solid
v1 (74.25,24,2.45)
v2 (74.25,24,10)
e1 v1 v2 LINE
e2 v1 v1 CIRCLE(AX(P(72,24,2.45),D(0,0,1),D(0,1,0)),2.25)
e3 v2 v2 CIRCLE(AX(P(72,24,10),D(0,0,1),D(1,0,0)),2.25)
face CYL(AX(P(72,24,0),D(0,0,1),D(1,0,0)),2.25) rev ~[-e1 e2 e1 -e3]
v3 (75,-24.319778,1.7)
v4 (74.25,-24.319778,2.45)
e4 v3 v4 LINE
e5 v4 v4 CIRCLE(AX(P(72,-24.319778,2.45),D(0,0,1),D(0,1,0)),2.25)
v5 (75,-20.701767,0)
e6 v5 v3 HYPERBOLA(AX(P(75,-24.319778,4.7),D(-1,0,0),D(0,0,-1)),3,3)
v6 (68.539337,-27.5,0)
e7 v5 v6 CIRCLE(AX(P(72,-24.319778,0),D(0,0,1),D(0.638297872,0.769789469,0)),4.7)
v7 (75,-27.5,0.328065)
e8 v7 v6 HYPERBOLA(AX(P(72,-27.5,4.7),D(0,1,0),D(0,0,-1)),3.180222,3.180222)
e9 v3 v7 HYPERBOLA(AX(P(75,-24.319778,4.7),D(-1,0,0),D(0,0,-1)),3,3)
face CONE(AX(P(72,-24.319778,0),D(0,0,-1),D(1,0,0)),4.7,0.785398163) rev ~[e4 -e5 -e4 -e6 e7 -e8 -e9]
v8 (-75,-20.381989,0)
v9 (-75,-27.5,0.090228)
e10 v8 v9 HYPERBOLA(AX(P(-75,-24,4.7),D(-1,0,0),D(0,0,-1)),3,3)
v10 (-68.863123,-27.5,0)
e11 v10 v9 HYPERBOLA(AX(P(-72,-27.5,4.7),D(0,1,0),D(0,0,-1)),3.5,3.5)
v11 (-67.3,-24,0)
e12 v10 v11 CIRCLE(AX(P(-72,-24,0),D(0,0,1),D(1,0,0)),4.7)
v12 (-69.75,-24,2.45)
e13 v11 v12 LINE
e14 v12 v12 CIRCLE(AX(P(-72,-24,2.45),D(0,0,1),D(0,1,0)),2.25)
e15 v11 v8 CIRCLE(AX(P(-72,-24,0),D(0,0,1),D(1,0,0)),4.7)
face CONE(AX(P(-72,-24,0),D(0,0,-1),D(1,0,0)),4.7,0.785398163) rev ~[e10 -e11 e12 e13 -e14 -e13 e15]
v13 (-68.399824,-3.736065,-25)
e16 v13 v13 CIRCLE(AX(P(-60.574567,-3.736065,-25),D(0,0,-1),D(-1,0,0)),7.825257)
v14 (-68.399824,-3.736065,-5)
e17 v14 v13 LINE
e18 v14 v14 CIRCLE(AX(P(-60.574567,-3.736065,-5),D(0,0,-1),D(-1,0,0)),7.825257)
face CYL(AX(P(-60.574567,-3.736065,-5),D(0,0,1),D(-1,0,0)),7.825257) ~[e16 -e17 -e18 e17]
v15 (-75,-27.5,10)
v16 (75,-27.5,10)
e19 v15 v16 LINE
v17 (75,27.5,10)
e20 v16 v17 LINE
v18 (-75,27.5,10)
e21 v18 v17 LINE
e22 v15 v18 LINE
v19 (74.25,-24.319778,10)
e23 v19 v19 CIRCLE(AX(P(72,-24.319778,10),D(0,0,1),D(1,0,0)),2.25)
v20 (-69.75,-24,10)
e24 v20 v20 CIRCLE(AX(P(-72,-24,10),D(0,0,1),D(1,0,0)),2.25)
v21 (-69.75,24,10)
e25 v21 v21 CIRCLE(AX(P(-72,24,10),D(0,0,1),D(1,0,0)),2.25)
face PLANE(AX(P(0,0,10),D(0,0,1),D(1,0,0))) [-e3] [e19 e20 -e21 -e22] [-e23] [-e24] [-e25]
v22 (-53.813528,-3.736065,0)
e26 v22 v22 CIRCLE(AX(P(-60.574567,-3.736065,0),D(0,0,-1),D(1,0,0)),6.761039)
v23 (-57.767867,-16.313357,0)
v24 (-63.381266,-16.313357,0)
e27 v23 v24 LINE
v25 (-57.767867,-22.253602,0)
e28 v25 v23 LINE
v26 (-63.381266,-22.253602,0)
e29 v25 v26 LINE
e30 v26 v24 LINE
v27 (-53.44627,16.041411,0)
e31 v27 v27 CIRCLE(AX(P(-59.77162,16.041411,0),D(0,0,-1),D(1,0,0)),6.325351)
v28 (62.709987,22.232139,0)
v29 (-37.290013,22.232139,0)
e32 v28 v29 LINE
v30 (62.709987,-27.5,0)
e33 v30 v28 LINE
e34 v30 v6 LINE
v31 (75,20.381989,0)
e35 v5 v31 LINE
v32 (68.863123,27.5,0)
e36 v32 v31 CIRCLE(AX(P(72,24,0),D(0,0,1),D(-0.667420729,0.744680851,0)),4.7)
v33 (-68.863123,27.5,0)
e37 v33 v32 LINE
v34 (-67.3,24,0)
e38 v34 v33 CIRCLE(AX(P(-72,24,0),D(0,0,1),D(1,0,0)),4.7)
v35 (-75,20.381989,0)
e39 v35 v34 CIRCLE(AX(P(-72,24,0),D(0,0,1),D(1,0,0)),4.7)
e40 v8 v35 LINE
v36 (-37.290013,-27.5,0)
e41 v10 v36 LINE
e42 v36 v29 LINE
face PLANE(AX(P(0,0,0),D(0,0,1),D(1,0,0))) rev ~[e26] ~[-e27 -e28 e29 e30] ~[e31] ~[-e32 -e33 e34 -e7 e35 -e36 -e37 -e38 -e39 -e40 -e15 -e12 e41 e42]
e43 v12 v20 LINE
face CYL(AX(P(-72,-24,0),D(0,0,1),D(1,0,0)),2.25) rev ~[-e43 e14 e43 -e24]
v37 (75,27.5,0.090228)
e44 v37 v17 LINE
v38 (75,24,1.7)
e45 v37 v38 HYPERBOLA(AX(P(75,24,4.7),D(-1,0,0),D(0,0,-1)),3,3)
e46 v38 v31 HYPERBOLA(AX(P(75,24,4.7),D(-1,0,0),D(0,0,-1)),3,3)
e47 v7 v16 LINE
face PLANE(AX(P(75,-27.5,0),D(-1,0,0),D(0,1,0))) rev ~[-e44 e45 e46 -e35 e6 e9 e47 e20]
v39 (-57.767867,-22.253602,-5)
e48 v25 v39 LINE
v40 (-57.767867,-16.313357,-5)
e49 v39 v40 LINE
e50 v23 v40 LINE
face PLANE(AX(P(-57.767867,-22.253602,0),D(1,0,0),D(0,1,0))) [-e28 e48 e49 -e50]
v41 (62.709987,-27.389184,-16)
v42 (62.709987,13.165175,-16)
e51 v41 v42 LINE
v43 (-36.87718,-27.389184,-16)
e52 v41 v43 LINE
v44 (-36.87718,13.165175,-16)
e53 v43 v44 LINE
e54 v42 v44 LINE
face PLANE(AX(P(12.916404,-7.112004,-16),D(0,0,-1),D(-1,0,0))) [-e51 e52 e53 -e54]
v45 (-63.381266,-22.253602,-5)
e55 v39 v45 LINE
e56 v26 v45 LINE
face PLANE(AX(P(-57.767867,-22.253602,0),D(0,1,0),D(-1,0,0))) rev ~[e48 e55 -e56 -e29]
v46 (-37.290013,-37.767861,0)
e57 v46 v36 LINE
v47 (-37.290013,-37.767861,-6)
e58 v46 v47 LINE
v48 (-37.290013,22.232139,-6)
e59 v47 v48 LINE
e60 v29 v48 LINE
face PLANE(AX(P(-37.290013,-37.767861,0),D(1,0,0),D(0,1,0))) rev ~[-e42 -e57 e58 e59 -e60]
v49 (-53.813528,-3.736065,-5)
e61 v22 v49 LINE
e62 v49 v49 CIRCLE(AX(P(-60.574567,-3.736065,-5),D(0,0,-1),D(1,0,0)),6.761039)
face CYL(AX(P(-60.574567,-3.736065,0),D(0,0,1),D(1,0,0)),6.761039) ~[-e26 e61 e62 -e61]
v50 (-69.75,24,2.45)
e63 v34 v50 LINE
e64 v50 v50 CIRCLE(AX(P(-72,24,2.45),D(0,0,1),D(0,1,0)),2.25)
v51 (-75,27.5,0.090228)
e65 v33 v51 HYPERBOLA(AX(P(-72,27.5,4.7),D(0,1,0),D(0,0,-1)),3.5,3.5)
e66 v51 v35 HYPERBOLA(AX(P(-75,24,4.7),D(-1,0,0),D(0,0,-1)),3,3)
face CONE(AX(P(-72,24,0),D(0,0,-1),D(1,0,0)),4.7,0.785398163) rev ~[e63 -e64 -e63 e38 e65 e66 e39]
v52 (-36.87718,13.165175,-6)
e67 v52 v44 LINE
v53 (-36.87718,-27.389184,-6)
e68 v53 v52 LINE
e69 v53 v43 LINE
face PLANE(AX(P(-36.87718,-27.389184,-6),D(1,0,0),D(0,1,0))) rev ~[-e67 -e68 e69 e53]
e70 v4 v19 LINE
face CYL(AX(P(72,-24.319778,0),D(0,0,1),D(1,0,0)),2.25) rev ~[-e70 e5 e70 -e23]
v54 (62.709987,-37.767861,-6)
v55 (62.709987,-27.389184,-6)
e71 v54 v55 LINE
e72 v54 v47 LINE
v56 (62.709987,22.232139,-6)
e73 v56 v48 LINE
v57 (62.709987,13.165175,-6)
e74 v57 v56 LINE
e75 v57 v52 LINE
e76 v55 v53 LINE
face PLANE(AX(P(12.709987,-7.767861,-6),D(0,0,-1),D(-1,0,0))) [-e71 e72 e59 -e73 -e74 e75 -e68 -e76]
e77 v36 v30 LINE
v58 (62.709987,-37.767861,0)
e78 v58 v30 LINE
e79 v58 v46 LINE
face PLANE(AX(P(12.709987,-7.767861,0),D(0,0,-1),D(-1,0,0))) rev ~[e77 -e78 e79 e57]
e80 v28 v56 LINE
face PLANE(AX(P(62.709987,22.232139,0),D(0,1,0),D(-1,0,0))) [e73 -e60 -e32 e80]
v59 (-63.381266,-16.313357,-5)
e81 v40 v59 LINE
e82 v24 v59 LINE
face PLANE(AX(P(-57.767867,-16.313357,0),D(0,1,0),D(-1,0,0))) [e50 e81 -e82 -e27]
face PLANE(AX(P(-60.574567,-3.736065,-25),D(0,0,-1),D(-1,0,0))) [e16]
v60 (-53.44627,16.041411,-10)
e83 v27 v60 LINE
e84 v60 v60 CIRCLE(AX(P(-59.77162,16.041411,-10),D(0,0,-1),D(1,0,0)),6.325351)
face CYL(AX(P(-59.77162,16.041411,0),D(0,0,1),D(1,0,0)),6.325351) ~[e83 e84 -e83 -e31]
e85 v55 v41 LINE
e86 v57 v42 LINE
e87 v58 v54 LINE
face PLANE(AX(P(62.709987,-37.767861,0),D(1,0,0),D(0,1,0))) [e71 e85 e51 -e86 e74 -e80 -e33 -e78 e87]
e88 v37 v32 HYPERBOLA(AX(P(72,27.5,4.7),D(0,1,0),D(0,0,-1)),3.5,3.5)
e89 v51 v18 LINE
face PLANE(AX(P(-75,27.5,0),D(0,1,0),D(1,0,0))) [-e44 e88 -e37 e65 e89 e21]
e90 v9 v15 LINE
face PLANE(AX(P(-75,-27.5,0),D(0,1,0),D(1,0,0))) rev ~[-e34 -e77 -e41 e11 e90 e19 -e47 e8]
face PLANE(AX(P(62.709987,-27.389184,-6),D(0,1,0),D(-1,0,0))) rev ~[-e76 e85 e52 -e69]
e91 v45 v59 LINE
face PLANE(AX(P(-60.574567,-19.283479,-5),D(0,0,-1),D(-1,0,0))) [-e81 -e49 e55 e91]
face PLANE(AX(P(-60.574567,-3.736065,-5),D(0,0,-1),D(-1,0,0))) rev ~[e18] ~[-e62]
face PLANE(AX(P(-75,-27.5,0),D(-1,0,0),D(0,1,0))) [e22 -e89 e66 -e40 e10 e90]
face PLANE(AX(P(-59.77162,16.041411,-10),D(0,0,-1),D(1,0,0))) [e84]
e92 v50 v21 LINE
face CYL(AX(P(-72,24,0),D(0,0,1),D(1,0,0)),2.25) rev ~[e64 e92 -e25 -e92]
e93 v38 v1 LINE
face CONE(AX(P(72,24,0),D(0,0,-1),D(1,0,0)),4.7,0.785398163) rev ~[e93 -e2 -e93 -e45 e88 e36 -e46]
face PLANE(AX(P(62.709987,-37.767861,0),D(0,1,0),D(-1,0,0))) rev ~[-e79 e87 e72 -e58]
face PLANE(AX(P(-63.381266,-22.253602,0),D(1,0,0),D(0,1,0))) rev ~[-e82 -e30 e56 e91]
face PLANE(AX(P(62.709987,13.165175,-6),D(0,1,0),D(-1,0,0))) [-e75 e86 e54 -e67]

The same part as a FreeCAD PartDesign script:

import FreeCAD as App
import Part
import Sketcher

V = App.Vector


def add_polygon(sketch, points):
    """Adds a closed chain of lines whose ends are joined by coincident constraints."""
    first, n = sketch.GeometryCount, len(points)
    for a, b in zip(points, points[1:] + points[:1]):
        sketch.addGeometry(Part.LineSegment(App.Vector(*a, 0), App.Vector(*b, 0)), False)
    for i in range(n):
        sketch.addConstraint(Sketcher.Constraint("Coincident", first + i, 2, first + (i + 1) % n, 1))

doc = App.newDocument("Part")
params = doc.addObject("Spreadsheet::Sheet", "Params")
for row, (alias, value) in enumerate([
    ("sketch1_width", "150 mm"),
    ("sketch1_height", "55 mm"),
    ("pad1_length", "10 mm"),
    ("sketch2_diameter", "4.5 mm"),
    ("hole_diameter", "4.5 mm"),
    ("hole_csink_diameter", "9.4 mm"),
    ("sketch3_width", "100 mm"),
    ("sketch3_height", "60 mm"),
    ("pad2_length", "6 mm"),
    ("pad3_length", "10 mm"),
    ("pad4_length", "10 mm"),
    ("pad5_length", "5 mm"),
    ("pad6_length", "20 mm"),
], start=1):
    params.set(f"A{row}", alias)
    params.set(f"B{row}", "=" + value)
    params.setAlias(f"B{row}", alias)

body = doc.addObject("PartDesign::Body", "Body")

sketch1 = body.newObject("Sketcher::SketchObject", "Sketch")
sketch1.AttachmentSupport = (doc.getObject("XY_Plane"), [""])
sketch1.MapMode = "FlatFace"
add_polygon(sketch1, [(-75, 28), (-75, -28), (75, -28), (75, 28)])
sketch1.addConstraint([
    Sketcher.Constraint("Vertical", 0),
    Sketcher.Constraint("Horizontal", 1),
    Sketcher.Constraint("Vertical", 2),
    Sketcher.Constraint("Horizontal", 3),
    Sketcher.Constraint("Symmetric", 0, 2, 2, 2, -1, 1),
    Sketcher.Constraint("DistanceX", 1, 1, 1, 2, 150.0),
    Sketcher.Constraint("DistanceY", 0, 2, 0, 1, 55.0),
])
sketch1.setExpression("Constraints[9]", "Params.sketch1_width")
sketch1.setExpression("Constraints[10]", "Params.sketch1_height")
pad1 = body.newObject("PartDesign::Pad", "Pad")
pad1.Profile = sketch1
pad1.setExpression("Length", "Params.pad1_length")

sketch2 = body.newObject("Sketcher::SketchObject", "Sketch001")
sketch2.AttachmentSupport = (doc.getObject("XY_Plane"), [""])
sketch2.MapMode = "FlatFace"
sketch2.addGeometry([
    Part.Circle(V(72, 24, 0), V(0, 0, 1), 2.2),
    Part.Circle(V(72, -24.3, 0), V(0, 0, 1), 2.2),
    Part.Circle(V(-72, -24, 0), V(0, 0, 1), 2.2),
    Part.Circle(V(-72, 24, 0), V(0, 0, 1), 2.2),
], False)
sketch2.addConstraint([
    Sketcher.Constraint("Equal", 0, 1),
    Sketcher.Constraint("Equal", 1, 2),
    Sketcher.Constraint("Equal", 2, 3),
    Sketcher.Constraint("Symmetric", 0, 3, 2, 3, -1, 1),
    Sketcher.Constraint("Symmetric", 0, 3, 3, 3, -2),
    Sketcher.Constraint("Vertical", 0, 3, 1, 3),
    Sketcher.Constraint("Diameter", 0, 4.5),
    Sketcher.Constraint("DistanceX", -1, 1, 0, 3, 72.0),
    Sketcher.Constraint("DistanceY", -1, 1, 0, 3, 24.0),
    Sketcher.Constraint("DistanceY", 1, 3, -1, 1, 24.319778),
])
sketch2.setExpression("Constraints[6]", "Params.sketch2_diameter")
doc.recompute()
hole = body.newObject("PartDesign::Hole", "Hole")
hole.Profile = sketch2
hole.ThreadType = "None"
hole.setExpression("Diameter", "Params.hole_diameter")
hole.DepthType = "ThroughAll"
hole.HoleCutType = "Countersink"
hole.setExpression("HoleCutDiameter", "Params.hole_csink_diameter")
hole.HoleCutCountersinkAngle = 90
hole.Reversed = True

sketch3 = body.newObject("Sketcher::SketchObject", "Sketch002")
sketch3.AttachmentSupport = (doc.getObject("XY_Plane"), [""])
sketch3.MapMode = "FlatFace"
add_polygon(sketch3, [(63, 22), (63, -38), (-37, -38), (-37, 22)])
sketch3.addConstraint([
    Sketcher.Constraint("Vertical", 0),
    Sketcher.Constraint("Horizontal", 1),
    Sketcher.Constraint("Vertical", 2),
    Sketcher.Constraint("Horizontal", 3),
    Sketcher.Constraint("DistanceX", 1, 2, 1, 1, 100.0),
    Sketcher.Constraint("DistanceY", 0, 2, 0, 1, 60.0),
    Sketcher.Constraint("DistanceY", 0, 2, -1, 1, 37.767861),
    Sketcher.Constraint("DistanceX", -1, 1, 0, 2, 62.709987),
])
sketch3.setExpression("Constraints[8]", "Params.sketch3_width")
sketch3.setExpression("Constraints[9]", "Params.sketch3_height")
pad2 = body.newObject("PartDesign::Pad", "Pad001")
pad2.Profile = sketch3
pad2.setExpression("Length", "Params.pad2_length")
pad2.Reversed = True

sketch4 = body.newObject("Sketcher::SketchObject", "Sketch003")
sketch4.AttachmentSupport = (doc.getObject("XY_Plane"), [""])
sketch4.MapMode = "FlatFace"
sketch4.AttachmentOffset = App.Placement(V(0, 0, -6), App.Rotation())
add_polygon(sketch4, [(63, 13), (63, -27), (-37, -27), (-37, 13)])
sketch4.addConstraint([
    Sketcher.Constraint("Vertical", 0),
    Sketcher.Constraint("Horizontal", 1),
    Sketcher.Constraint("Vertical", 2),
    Sketcher.Constraint("Horizontal", 3),
    Sketcher.Constraint("DistanceY", 0, 2, 0, 1, 40.55436),
    Sketcher.Constraint("DistanceX", 1, 2, 1, 1, 99.587167),
    Sketcher.Constraint("DistanceX", 1, 2, -1, 1, 36.87718),
    Sketcher.Constraint("DistanceY", 0, 2, -1, 1, 27.389184),
])
pad3 = body.newObject("PartDesign::Pad", "Pad002")
pad3.Profile = sketch4
pad3.setExpression("Length", "Params.pad3_length")
pad3.Reversed = True

sketch5 = body.newObject("Sketcher::SketchObject", "Sketch004")
sketch5.AttachmentSupport = (doc.getObject("XY_Plane"), [""])
sketch5.MapMode = "FlatFace"
sketch5.addGeometry(Part.Circle(V(-60, 16, 0), V(0, 0, 1), 6), False)
sketch5.addConstraint([
    Sketcher.Constraint("Diameter", 0, 12.650701),
    Sketcher.Constraint("DistanceX", 0, 3, -1, 1, 59.77162),
    Sketcher.Constraint("DistanceY", -1, 1, 0, 3, 16.041411),
])
pad4 = body.newObject("PartDesign::Pad", "Pad003")
pad4.Profile = sketch5
pad4.setExpression("Length", "Params.pad4_length")
pad4.Reversed = True

sketch6 = body.newObject("Sketcher::SketchObject", "Sketch005")
sketch6.AttachmentSupport = (doc.getObject("XY_Plane"), [""])
sketch6.MapMode = "FlatFace"
sketch6.addGeometry(Part.Circle(V(-61, -4, 0), V(0, 0, 1), 7), False)
add_polygon(sketch6, [(-58, -16), (-58, -22), (-63, -22), (-63, -16)])
sketch6.addConstraint([
    Sketcher.Constraint("Vertical", 1),
    Sketcher.Constraint("Horizontal", 2),
    Sketcher.Constraint("Vertical", 3),
    Sketcher.Constraint("Horizontal", 4),
    Sketcher.Constraint("Diameter", 0, 13.522077),
    Sketcher.Constraint("DistanceX", 2, 2, 2, 1, 5.613398),
    Sketcher.Constraint("DistanceY", 1, 2, -1, 1, 22.253602),
    Sketcher.Constraint("DistanceX", 0, 3, 1, 2, 2.806699),
    Sketcher.Constraint("DistanceY", 1, 2, 1, 1, 5.940245),
    Sketcher.Constraint("DistanceX", 0, 3, -1, 1, 60.574567),
    Sketcher.Constraint("DistanceY", 0, 3, -1, 1, 3.736065),
])
pad5 = body.newObject("PartDesign::Pad", "Pad004")
pad5.Profile = sketch6
pad5.setExpression("Length", "Params.pad5_length")
pad5.Reversed = True

sketch7 = body.newObject("Sketcher::SketchObject", "Sketch006")
sketch7.AttachmentSupport = (doc.getObject("XY_Plane"), [""])
sketch7.MapMode = "FlatFace"
sketch7.AttachmentOffset = App.Placement(V(0, 0, -5), App.Rotation())
sketch7.addGeometry(Part.Circle(V(-61, -4, 0), V(0, 0, 1), 8), False)
sketch7.addConstraint([
    Sketcher.Constraint("Diameter", 0, 15.650514),
    Sketcher.Constraint("DistanceX", 0, 3, -1, 1, 60.574567),
    Sketcher.Constraint("DistanceY", 0, 3, -1, 1, 3.736065),
])
pad6 = body.newObject("PartDesign::Pad", "Pad005")
pad6.Profile = sketch7
pad6.setExpression("Length", "Params.pad6_length")
pad6.Reversed = True

doc.recompute()
